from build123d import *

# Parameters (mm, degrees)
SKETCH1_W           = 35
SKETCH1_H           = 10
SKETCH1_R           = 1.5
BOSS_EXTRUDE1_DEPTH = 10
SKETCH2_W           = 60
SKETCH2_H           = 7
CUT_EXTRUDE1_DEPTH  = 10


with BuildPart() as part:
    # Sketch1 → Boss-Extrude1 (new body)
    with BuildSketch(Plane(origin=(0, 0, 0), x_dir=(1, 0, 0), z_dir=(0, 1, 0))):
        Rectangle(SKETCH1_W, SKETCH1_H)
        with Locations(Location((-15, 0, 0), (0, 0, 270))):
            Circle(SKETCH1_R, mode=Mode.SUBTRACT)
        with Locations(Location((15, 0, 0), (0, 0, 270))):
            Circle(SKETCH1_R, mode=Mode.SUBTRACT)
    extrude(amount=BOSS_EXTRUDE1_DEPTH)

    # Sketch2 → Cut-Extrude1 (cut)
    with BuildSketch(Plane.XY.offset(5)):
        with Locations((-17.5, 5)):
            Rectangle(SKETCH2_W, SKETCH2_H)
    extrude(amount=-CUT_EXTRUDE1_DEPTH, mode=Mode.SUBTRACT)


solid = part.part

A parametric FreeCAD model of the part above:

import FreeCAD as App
import Part
import Sketcher
from FreeCAD import Vector
Q = App.Units.Quantity


def add_polygon(sketch, points):
    """Adds a closed chain of lines whose ends are joined by coincident constraints."""
    first, n = sketch.GeometryCount, len(points)
    for a, b in zip(points, points[1:] + points[:1]):
        sketch.addGeometry(Part.LineSegment(App.Vector(*a, 0), App.Vector(*b, 0)), False)
    for i in range(n):
        sketch.addConstraint(Sketcher.Constraint("Coincident", first + i, 2, first + (i + 1) % n, 1))

doc = App.newDocument("Part")
params = doc.addObject("Spreadsheet::Sheet", "Params")
for row, (alias, value) in enumerate([
    ("sketch1_diameter", "3 mm"),
    ("sketch1_width", "35 mm"),
    ("sketch1_height", "10 mm"),
    ("pad1_length", "10 mm"),
    ("sketch2_width", "60 mm"),
    ("sketch2_height", "7 mm"),
    ("pocket1_length", "10 mm"),
], start=1):
    params.set(f"A{row}", alias)
    params.set(f"B{row}", "=" + value)
    params.setAlias(f"B{row}", alias)

body = doc.addObject("PartDesign::Body", "Body")

# Sketch on XZ plane
sketch1 = doc.addObject("Sketcher::SketchObject", "Sketch")
body.addObject(sketch1)
sketch1.AttachmentSupport = (doc.XZ_Plane, [""])
sketch1.MapMode = "FlatFace"
add_polygon(sketch1, [(-17.5, -5), (-17.5, 5), (17.5, 5), (17.5, -5)])  # lines 0-3
sketch1.addGeometry(Part.Circle(Vector(-15, 0, 0), Vector(0, 0, 1), 1.5), False)  # 4
sketch1.addGeometry(Part.Circle(Vector(15, 0, 0), Vector(0, 0, 1), 1.5), False)  # 5
sketch1.addConstraint([
    Sketcher.Constraint("Vertical", 0),
    Sketcher.Constraint("Horizontal", 1),
    Sketcher.Constraint("Vertical", 2),
    Sketcher.Constraint("Horizontal", 3),
    Sketcher.Constraint("Equal", 4, 5),
    Sketcher.Constraint("Symmetric", 4, 3, 5, 3, -1, 1),
    Sketcher.Constraint("Symmetric", 0, 2, 2, 2, -1, 1),
    Sketcher.Constraint("PointOnObject", 4, 3, -1),
    Sketcher.Constraint("Diameter", 4, Q("3 mm")),
    Sketcher.Constraint("DistanceX", 1, 1, 1, 2, Q("35 mm")),
    Sketcher.Constraint("DistanceY", 0, 1, 0, 2, Q("10 mm")),
    Sketcher.Constraint("DistanceX", 4, 3, -1, 1, Q("15 mm")),
])
sketch1.setExpression("Constraints[12]", "Params.sketch1_diameter")
sketch1.setExpression("Constraints[13]", "Params.sketch1_width")
sketch1.setExpression("Constraints[14]", "Params.sketch1_height")
pad1 = doc.addObject("PartDesign::Pad", "Pad")
body.addObject(pad1)
pad1.Profile = sketch1
pad1.setExpression("Length", "Params.pad1_length")
pad1.Reversed = True

# Sketch on XY plane
sketch2 = doc.addObject("Sketcher::SketchObject", "Sketch001")
body.addObject(sketch2)
sketch2.AttachmentSupport = (doc.XY_Plane, [""])
sketch2.MapMode = "FlatFace"
sketch2.AttachmentOffset = App.Placement(Vector(0, 0, 5), App.Rotation())
add_polygon(sketch2, [(-48, 8), (-48, 2), (12, 2), (12, 8)])  # lines 0-3
sketch2.addConstraint([
    Sketcher.Constraint("Vertical", 0),
    Sketcher.Constraint("Horizontal", 1),
    Sketcher.Constraint("Vertical", 2),
    Sketcher.Constraint("Horizontal", 3),
    Sketcher.Constraint("DistanceX", 1, 1, 1, 2, Q("60 mm")),
    Sketcher.Constraint("DistanceY", 0, 2, 0, 1, Q("7 mm")),
    Sketcher.Constraint("DistanceX", 0, 2, -1, 1, Q("47.5 mm")),
    Sketcher.Constraint("DistanceY", -1, 1, 0, 2, Q("1.5 mm")),
])
sketch2.setExpression("Constraints[8]", "Params.sketch2_width")
sketch2.setExpression("Constraints[9]", "Params.sketch2_height")
pocket1 = doc.addObject("PartDesign::Pocket", "Pocket")
body.addObject(pocket1)
pocket1.Profile = sketch2
pocket1.setExpression("Length", "Params.pocket1_length")

doc.recompute()
